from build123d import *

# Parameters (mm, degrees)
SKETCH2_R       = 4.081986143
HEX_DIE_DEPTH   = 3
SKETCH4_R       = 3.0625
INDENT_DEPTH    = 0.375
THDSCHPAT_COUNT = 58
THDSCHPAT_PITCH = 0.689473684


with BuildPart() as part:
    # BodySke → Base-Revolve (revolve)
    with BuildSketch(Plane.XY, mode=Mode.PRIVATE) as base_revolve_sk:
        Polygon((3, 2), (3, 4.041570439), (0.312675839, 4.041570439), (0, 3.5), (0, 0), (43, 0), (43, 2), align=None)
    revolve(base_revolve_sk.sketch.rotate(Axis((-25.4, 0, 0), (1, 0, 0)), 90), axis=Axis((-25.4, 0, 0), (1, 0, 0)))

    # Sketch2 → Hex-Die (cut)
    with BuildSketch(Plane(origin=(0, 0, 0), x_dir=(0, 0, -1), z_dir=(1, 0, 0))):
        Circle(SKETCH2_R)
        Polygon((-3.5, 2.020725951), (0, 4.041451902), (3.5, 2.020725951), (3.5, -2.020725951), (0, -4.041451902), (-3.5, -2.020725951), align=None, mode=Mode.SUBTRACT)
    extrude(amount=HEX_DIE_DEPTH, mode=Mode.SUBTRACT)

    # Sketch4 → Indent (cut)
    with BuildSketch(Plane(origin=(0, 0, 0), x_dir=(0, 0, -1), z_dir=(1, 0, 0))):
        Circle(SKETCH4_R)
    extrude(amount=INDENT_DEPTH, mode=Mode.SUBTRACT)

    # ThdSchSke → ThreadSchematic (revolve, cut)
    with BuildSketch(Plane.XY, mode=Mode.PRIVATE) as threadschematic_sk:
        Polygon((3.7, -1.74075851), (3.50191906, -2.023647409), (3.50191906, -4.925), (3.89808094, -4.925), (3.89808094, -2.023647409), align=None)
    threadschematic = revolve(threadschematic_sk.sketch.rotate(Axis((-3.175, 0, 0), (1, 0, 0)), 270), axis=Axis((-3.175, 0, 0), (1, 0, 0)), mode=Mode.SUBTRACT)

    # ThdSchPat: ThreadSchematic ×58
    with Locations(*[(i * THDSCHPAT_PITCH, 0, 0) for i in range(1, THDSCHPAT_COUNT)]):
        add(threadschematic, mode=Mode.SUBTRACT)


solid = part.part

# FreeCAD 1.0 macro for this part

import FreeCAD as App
import Part
import Sketcher
from FreeCAD import Vector
Q = App.Units.Quantity

doc = App.newDocument("Part")
body = doc.addObject("PartDesign::Body", "Body")

# Sketch on XY plane
sketch1 = body.newObject("Sketcher::SketchObject", "Sketch")
sketch1.AttachmentSupport = (doc.getObject("XY_Plane"), [""])
sketch1.MapMode = "FlatFace"
sketch1.addGeometry(Part.LineSegment(Vector(3, 2, 0), Vector(3, 4, 0)), False)
sketch1.addGeometry(Part.LineSegment(Vector(3, 4, 0), Vector(0.3, 4, 0)), False)
sketch1.addGeometry(Part.LineSegment(Vector(0.3, 4, 0), Vector(0, 3.5, 0)), False)
sketch1.addGeometry(Part.LineSegment(Vector(0, 3.5, 0), Vector(0, 0, 0)), False)
sketch1.addGeometry(Part.LineSegment(Vector(0, 0, 0), Vector(43, 0, 0)), False)
sketch1.addGeometry(Part.LineSegment(Vector(43, 0, 0), Vector(43, 2, 0)), False)
sketch1.addGeometry(Part.LineSegment(Vector(43, 2, 0), Vector(3, 2, 0)), False)
sketch1.addConstraint(Sketcher.Constraint("Coincident", 0, 2, 1, 1))
sketch1.addConstraint(Sketcher.Constraint("Coincident", 1, 2, 2, 1))
sketch1.addConstraint(Sketcher.Constraint("Coincident", 2, 2, 3, 1))
sketch1.addConstraint(Sketcher.Constraint("Coincident", 3, 2, 4, 1))
sketch1.addConstraint(Sketcher.Constraint("Coincident", 4, 2, 5, 1))
sketch1.addConstraint(Sketcher.Constraint("Coincident", 5, 2, 6, 1))
sketch1.addConstraint(Sketcher.Constraint("Coincident", 6, 2, 0, 1))
sketch1.addConstraint(Sketcher.Constraint("Vertical", 0))
sketch1.addConstraint(Sketcher.Constraint("Horizontal", 1))
sketch1.addConstraint(Sketcher.Constraint("Vertical", 3))
sketch1.addConstraint(Sketcher.Constraint("Horizontal", 4))
sketch1.addConstraint(Sketcher.Constraint("Vertical", 5))
sketch1.addConstraint(Sketcher.Constraint("Horizontal", 6))
sketch1.addConstraint(Sketcher.Constraint("Coincident", 3, 2, -1, 1))
sketch1.addConstraint(Sketcher.Constraint("DistanceX", 4, 1, 4, 2, Q("43 mm")))
sketch1.addConstraint(Sketcher.Constraint("DistanceX", 6, 2, 6, 1, Q("40 mm")))
sketch1.addConstraint(Sketcher.Constraint("DistanceY", 5, 1, 5, 2, Q("2 mm")))
sketch1.addConstraint(Sketcher.Constraint("Angle", 2, Q("-120 deg")))
sketch1.addConstraint(Sketcher.Constraint("DistanceY", 3, 2, 3, 1, Q("3.5 mm")))
sketch1.addConstraint(Sketcher.Constraint("DistanceY", 0, 1, 0, 2, Q("2.04157 mm")))
revolution = body.newObject("PartDesign::Revolution", "Revolution")
revolution.Profile = sketch1
revolution.ReferenceAxis = (sketch1, ["H_Axis"])
revolution.Angle = 360

# Sketch on YZ plane
sketch2 = body.newObject("Sketcher::SketchObject", "Sketch001")
sketch2.AttachmentSupport = (doc.getObject("YZ_Plane"), [""])
sketch2.MapMode = "FlatFace"
sketch2.addGeometry(Part.Circle(Vector(0, 0, 0), Vector(0, 0, 1), 4.1), False)
sketch2.addGeometry(Part.LineSegment(Vector(-2, 3.5, 0), Vector(2, 3.5, 0)), False)
sketch2.addGeometry(Part.LineSegment(Vector(2, 3.5, 0), Vector(4, 0, 0)), False)
sketch2.addGeometry(Part.LineSegment(Vector(4, 0, 0), Vector(2, -3.5, 0)), False)
sketch2.addGeometry(Part.LineSegment(Vector(2, -3.5, 0), Vector(-2, -3.5, 0)), False)
sketch2.addGeometry(Part.LineSegment(Vector(-2, -3.5, 0), Vector(-4, 0, 0)), False)
sketch2.addGeometry(Part.LineSegment(Vector(-4, 0, 0), Vector(-2, 3.5, 0)), False)
sketch2.addConstraint(Sketcher.Constraint("Coincident", 1, 2, 2, 1))
sketch2.addConstraint(Sketcher.Constraint("Coincident", 2, 2, 3, 1))
sketch2.addConstraint(Sketcher.Constraint("Coincident", 3, 2, 4, 1))
sketch2.addConstraint(Sketcher.Constraint("Coincident", 4, 2, 5, 1))
sketch2.addConstraint(Sketcher.Constraint("Coincident", 5, 2, 6, 1))
sketch2.addConstraint(Sketcher.Constraint("Coincident", 6, 2, 1, 1))
sketch2.addConstraint(Sketcher.Constraint("Horizontal", 1))
sketch2.addConstraint(Sketcher.Constraint("Horizontal", 4))
sketch2.addConstraint(Sketcher.Constraint("Coincident", 0, 3, -1, 1))
sketch2.addConstraint(Sketcher.Constraint("Symmetric", 1, 2, 4, 2, -1, 1))
sketch2.addConstraint(Sketcher.Constraint("Symmetric", 2, 2, 5, 2, -1, 1))
sketch2.addConstraint(Sketcher.Constraint("PointOnObject", 2, 2, -1))
sketch2.addConstraint(Sketcher.Constraint("Parallel", 3, 6))
sketch2.addConstraint(Sketcher.Constraint("Vertical", 1, 2, 3, 2))
sketch2.addConstraint(Sketcher.Constraint("Angle", 2, Q("-60 deg")))
sketch2.addConstraint(Sketcher.Constraint("DistanceY", 3, 2, 1, 2, Q("7 mm")))
sketch2.addConstraint(Sketcher.Constraint("Diameter", 0, Q("8.163972 mm")))
sketch2.addConstraint(Sketcher.Constraint("DistanceX", 1, 1, 1, 2, Q("4.041452 mm")))
pocket1 = body.newObject("PartDesign::Pocket", "Pocket")
pocket1.Profile = sketch2
pocket1.Length = 3
pocket1.Reversed = True

# Sketch on YZ plane
sketch3 = body.newObject("Sketcher::SketchObject", "Sketch002")
sketch3.AttachmentSupport = (doc.getObject("YZ_Plane"), [""])
sketch3.MapMode = "FlatFace"
sketch3.addGeometry(Part.Circle(Vector(0, 0, 0), Vector(0, 0, 1), 3.1), False)
sketch3.addConstraint(Sketcher.Constraint("Coincident", 0, 3, -1, 1))
sketch3.addConstraint(Sketcher.Constraint("Diameter", 0, Q("6.125 mm")))
pocket2 = body.newObject("PartDesign::Pocket", "Pocket001")
pocket2.Profile = sketch3
pocket2.Length = 0.375
pocket2.Reversed = True

# Sketch on XY plane
sketch4 = body.newObject("Sketcher::SketchObject", "Sketch003")
sketch4.AttachmentSupport = (doc.getObject("XY_Plane"), [""])
sketch4.MapMode = "FlatFace"
sketch4.addGeometry(Part.LineSegment(Vector(3.7, -1.74, 0), Vector(3.5, -2.02, 0)), False)
sketch4.addGeometry(Part.LineSegment(Vector(3.5, -2.02, 0), Vector(3.5, -4.92, 0)), False)
sketch4.addGeometry(Part.LineSegment(Vector(3.5, -4.92, 0), Vector(3.9, -4.92, 0)), False)
sketch4.addGeometry(Part.LineSegment(Vector(3.9, -4.92, 0), Vector(3.9, -2.02, 0)), False)
sketch4.addGeometry(Part.LineSegment(Vector(3.9, -2.02, 0), Vector(3.7, -1.74, 0)), False)
sketch4.addConstraint(Sketcher.Constraint("Coincident", 0, 2, 1, 1))
sketch4.addConstraint(Sketcher.Constraint("Coincident", 1, 2, 2, 1))
sketch4.addConstraint(Sketcher.Constraint("Coincident", 2, 2, 3, 1))
sketch4.addConstraint(Sketcher.Constraint("Coincident", 3, 2, 4, 1))
sketch4.addConstraint(Sketcher.Constraint("Coincident", 4, 2, 0, 1))
sketch4.addConstraint(Sketcher.Constraint("Vertical", 1))
sketch4.addConstraint(Sketcher.Constraint("Horizontal", 2))
sketch4.addConstraint(Sketcher.Constraint("Vertical", 3))
sketch4.addConstraint(Sketcher.Constraint("Horizontal", 0, 2, 3, 2))
sketch4.addConstraint(Sketcher.Constraint("Equal", 0, 4))
sketch4.addConstraint(Sketcher.Constraint("Angle", 0, Q("-125 deg")))
sketch4.addConstraint(Sketcher.Constraint("DistanceX", -1, 1, 4, 2, Q("3.7 mm")))
sketch4.addConstraint(Sketcher.Constraint("DistanceY", 1, 2, -1, 1, Q("4.925 mm")))
sketch4.addConstraint(Sketcher.Constraint("DistanceX", 2, 1, 2, 2, Q("0.396162 mm")))
sketch4.addConstraint(Sketcher.Constraint("DistanceY", 1, 2, 1, 1, Q("2.901353 mm")))
groove = body.newObject("PartDesign::Groove", "Groove")
groove.Profile = sketch4
groove.ReferenceAxis = (sketch4, ["H_Axis"])
groove.Angle = 360
doc.recompute()

linearpattern = body.newObject("PartDesign::LinearPattern", "LinearPattern")
linearpattern.Originals = [groove]
linearpattern.Direction = (doc.getObject("X_Axis"), [""])
linearpattern.Mode = "offset"
linearpattern.Offset = 0.689474
linearpattern.Occurrences = 58
body.Tip = linearpattern

doc.recompute()
